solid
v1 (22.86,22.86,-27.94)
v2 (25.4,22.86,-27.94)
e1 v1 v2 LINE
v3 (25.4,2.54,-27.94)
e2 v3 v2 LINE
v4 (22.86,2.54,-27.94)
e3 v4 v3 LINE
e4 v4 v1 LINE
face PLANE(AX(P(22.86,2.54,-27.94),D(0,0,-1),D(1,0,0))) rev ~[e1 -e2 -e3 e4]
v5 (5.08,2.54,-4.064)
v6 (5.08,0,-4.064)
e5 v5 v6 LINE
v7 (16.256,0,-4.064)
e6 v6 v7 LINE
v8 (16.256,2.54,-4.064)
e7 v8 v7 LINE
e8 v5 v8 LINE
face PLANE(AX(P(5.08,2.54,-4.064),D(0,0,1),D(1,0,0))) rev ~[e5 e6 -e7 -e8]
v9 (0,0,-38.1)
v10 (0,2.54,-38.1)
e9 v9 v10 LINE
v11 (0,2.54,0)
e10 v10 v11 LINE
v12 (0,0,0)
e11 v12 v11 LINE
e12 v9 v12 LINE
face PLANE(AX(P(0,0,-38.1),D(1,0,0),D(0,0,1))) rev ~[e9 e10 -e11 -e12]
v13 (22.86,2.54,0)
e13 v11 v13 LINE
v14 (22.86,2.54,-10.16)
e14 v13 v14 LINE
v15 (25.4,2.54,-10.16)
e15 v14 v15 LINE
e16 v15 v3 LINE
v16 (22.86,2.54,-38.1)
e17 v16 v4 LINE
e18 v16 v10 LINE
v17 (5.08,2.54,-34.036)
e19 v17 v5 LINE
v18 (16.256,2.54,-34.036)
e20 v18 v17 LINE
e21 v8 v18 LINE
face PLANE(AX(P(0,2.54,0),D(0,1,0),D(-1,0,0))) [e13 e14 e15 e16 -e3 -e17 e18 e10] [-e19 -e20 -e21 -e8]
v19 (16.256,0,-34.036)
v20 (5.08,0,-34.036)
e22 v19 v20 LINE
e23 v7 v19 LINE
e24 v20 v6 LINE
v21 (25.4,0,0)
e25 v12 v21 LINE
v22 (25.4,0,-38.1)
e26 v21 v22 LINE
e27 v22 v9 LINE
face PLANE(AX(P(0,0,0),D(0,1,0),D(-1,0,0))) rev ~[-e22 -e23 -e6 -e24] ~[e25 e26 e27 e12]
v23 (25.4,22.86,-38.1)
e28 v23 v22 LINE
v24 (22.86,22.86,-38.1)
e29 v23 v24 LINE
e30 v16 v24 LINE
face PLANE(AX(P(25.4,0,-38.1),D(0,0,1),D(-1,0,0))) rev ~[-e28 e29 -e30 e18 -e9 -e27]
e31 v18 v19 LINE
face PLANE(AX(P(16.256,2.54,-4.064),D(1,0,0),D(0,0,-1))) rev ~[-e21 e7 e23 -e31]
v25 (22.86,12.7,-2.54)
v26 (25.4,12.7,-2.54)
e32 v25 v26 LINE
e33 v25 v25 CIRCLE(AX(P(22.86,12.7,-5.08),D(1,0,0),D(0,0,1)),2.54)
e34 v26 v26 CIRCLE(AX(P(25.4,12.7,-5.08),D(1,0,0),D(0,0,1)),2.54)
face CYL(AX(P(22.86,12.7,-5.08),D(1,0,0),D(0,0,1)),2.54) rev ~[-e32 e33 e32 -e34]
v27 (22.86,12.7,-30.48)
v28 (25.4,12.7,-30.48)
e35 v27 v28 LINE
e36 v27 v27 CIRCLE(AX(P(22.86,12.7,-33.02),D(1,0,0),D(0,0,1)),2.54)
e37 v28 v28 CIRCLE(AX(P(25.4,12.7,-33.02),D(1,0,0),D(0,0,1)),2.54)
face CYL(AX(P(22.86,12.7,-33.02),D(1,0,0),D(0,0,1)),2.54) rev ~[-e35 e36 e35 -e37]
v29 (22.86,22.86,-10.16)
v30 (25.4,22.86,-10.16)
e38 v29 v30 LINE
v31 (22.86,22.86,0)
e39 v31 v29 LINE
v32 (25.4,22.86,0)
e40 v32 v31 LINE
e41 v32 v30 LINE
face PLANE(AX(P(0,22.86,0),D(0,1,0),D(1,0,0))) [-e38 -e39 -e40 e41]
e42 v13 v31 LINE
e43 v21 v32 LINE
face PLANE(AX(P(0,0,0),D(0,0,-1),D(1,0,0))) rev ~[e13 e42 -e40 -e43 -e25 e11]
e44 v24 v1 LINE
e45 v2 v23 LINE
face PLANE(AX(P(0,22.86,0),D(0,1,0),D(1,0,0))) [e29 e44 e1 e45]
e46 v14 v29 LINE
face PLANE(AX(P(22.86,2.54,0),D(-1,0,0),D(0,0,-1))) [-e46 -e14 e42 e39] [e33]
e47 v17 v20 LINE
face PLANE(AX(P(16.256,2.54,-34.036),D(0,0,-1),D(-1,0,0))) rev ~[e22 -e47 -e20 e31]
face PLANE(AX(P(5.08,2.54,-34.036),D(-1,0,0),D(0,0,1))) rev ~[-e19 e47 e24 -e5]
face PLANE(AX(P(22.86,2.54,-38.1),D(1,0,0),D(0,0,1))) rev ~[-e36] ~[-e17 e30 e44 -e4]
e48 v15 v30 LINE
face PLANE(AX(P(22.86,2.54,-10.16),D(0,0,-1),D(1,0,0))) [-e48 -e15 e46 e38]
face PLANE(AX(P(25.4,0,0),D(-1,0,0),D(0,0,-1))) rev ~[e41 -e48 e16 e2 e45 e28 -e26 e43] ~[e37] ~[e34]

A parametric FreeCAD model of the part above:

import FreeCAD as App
import Part
import Sketcher
Q = App.Units.Quantity


def add_polygon(sketch, points):
    """Adds a closed chain of lines whose ends are joined by coincident constraints."""
    first, n = sketch.GeometryCount, len(points)
    for a, b in zip(points, points[1:] + points[:1]):
        sketch.addGeometry(Part.LineSegment(App.Vector(*a, 0), App.Vector(*b, 0)), False)
    for i in range(n):
        sketch.addConstraint(Sketcher.Constraint("Coincident", first + i, 2, first + (i + 1) % n, 1))

doc = App.newDocument("Part")
params = doc.addObject("Spreadsheet::Sheet", "Params")
for row, (alias, value) in enumerate([
    ("sketch1_width", "1 in"),
    ("sketch1_height", "1.5 in"),
    ("pad1_length", "0.1 in"),
    ("sketch2_width", "0.44 in"),
    ("sketch2_height", "1.18 in"),
    ("pocket1_length", "0.1 in"),
    ("sketch3_width", "0.1 in"),
    ("sketch3_height", "0.4 in"),
    ("pad2_length", "0.8 in"),
    ("sketch4_diameter", "0.2 in"),
    ("hole_diameter", "0.2 in"),
    ("sketch5_diameter", "0.2 in"),
    ("hole2_diameter", "0.2 in"),
], start=1):
    params.set(f"A{row}", alias)
    params.set(f"B{row}", "=" + value)
    params.setAlias(f"B{row}", alias)

body = doc.addObject("PartDesign::Body", "Body")

# Sketch on XZ plane
sketch1 = body.newObject("Sketcher::SketchObject", "Sketch")
sketch1.AttachmentSupport = (doc.getObject("XZ_Plane"), [""])
sketch1.MapMode = "FlatFace"
add_polygon(sketch1, [(0, -38), (0, 0), (25, 0), (25, -38)])  # lines 0-3
sketch1.addConstraint([
    Sketcher.Constraint("Vertical", 0),
    Sketcher.Constraint("Horizontal", 1),
    Sketcher.Constraint("Vertical", 2),
    Sketcher.Constraint("Horizontal", 3),
    Sketcher.Constraint("Coincident", 0, 2, -1, 1),
    Sketcher.Constraint("DistanceX", 1, 1, 1, 2, Q("1 in")),
    Sketcher.Constraint("DistanceY", 0, 1, 0, 2, Q("1.5 in")),
])
sketch1.setExpression("Constraints[9]", "Params.sketch1_width")
sketch1.setExpression("Constraints[10]", "Params.sketch1_height")
pad1 = body.newObject("PartDesign::Pad", "Pad")
pad1.Profile = sketch1
pad1.setExpression("Length", "Params.pad1_length")
pad1.Reversed = True

# Sketch on XZ plane
sketch2 = body.newObject("Sketcher::SketchObject", "Sketch001")
sketch2.AttachmentSupport = (doc.getObject("XZ_Plane"), [""])
sketch2.MapMode = "FlatFace"
sketch2.AttachmentOffset = App.Placement(App.Vector(0, 0, -0.1 * 25.4), App.Rotation())
add_polygon(sketch2, [(5, -34), (5, -4), (16, -4), (16, -34)])  # lines 0-3
sketch2.addConstraint([
    Sketcher.Constraint("Vertical", 0),
    Sketcher.Constraint("Horizontal", 1),
    Sketcher.Constraint("Vertical", 2),
    Sketcher.Constraint("Horizontal", 3),
    Sketcher.Constraint("DistanceX", 1, 1, 1, 2, Q("0.44 in")),
    Sketcher.Constraint("DistanceX", -1, 1, 0, 2, Q("0.2 in")),
    Sketcher.Constraint("DistanceY", 0, 2, -1, 1, Q("0.16 in")),
    Sketcher.Constraint("DistanceY", 0, 1, 0, 2, Q("1.18 in")),
])
sketch2.setExpression("Constraints[8]", "Params.sketch2_width")
sketch2.setExpression("Constraints[11]", "Params.sketch2_height")
pocket1 = body.newObject("PartDesign::Pocket", "Pocket")
pocket1.Profile = sketch2
pocket1.setExpression("Length", "Params.pocket1_length")
pocket1.Reversed = True

# Sketch on XZ plane
sketch3 = body.newObject("Sketcher::SketchObject", "Sketch002")
sketch3.AttachmentSupport = (doc.getObject("XZ_Plane"), [""])
sketch3.MapMode = "FlatFace"
sketch3.AttachmentOffset = App.Placement(App.Vector(0, 0, -0.1 * 25.4), App.Rotation())
add_polygon(sketch3, [(22.9, 0), (25.4, 0), (25.4, -10.2), (22.9, -10.2)])  # lines 0-3
add_polygon(sketch3, [(22.9, -27.9), (25.4, -27.9), (25.4, -38.1), (22.9, -38.1)])  # lines 4-7
sketch3.addConstraint([
    Sketcher.Constraint("Horizontal", 0),
    Sketcher.Constraint("Vertical", 1),
    Sketcher.Constraint("Horizontal", 2),
    Sketcher.Constraint("Vertical", 3),
    Sketcher.Constraint("Horizontal", 4),
    Sketcher.Constraint("Vertical", 5),
    Sketcher.Constraint("Horizontal", 6),
    Sketcher.Constraint("Vertical", 7),
    Sketcher.Constraint("PointOnObject", 0, 2, -1),
    Sketcher.Constraint("Vertical", 1, 2, 4, 2),
    Sketcher.Constraint("Vertical", 3, 2, 6, 2),
    Sketcher.Constraint("Equal", 3, 5),
    Sketcher.Constraint("DistanceX", 0, 1, 0, 2, Q("0.1 in")),
    Sketcher.Constraint("DistanceY", 1, 2, 1, 1, Q("0.4 in")),
    Sketcher.Constraint("DistanceX", -1, 1, 0, 2, Q("1 in")),
    Sketcher.Constraint("DistanceY", 4, 2, -1, 1, Q("1.1 in")),
])
sketch3.setExpression("Constraints[20]", "Params.sketch3_width")
sketch3.setExpression("Constraints[21]", "Params.sketch3_height")
pad2 = body.newObject("PartDesign::Pad", "Pad001")
pad2.Profile = sketch3
pad2.setExpression("Length", "Params.pad2_length")
pad2.Reversed = True

# Sketch on YZ plane
sketch4 = body.newObject("Sketcher::SketchObject", "Sketch003")
sketch4.AttachmentSupport = (doc.getObject("YZ_Plane"), [""])
sketch4.MapMode = "FlatFace"
sketch4.AttachmentOffset = App.Placement(App.Vector(0, 0, 0.9 * 25.4), App.Rotation())
sketch4.addGeometry(Part.Circle(App.Vector(12.7, -5.1, 0), App.Vector(0, 0, 1), 2.5), False)
sketch4.addConstraint([
    Sketcher.Constraint("Diameter", 0, Q("0.2 in")),
    Sketcher.Constraint("DistanceX", -1, 1, 0, 3, Q("0.5 in")),
    Sketcher.Constraint("DistanceY", 0, 3, -1, 1, Q("0.2 in")),
])
sketch4.setExpression("Constraints[0]", "Params.sketch4_diameter")
doc.recompute()
hole = body.newObject("PartDesign::Hole", "Hole")
hole.Profile = sketch4
hole.ThreadType = "None"
hole.setExpression("Diameter", "Params.hole_diameter")
hole.DepthType = "ThroughAll"
hole.Reversed = True

# Sketch on YZ plane
sketch5 = body.newObject("Sketcher::SketchObject", "Sketch004")
sketch5.AttachmentSupport = (doc.getObject("YZ_Plane"), [""])
sketch5.MapMode = "FlatFace"
sketch5.AttachmentOffset = App.Placement(App.Vector(0, 0, 0.9 * 25.4), App.Rotation())
sketch5.addGeometry(Part.Circle(App.Vector(12.7, -33, 0), App.Vector(0, 0, 1), 2.5), False)
sketch5.addConstraint([
    Sketcher.Constraint("Diameter", 0, Q("0.2 in")),
    Sketcher.Constraint("DistanceX", -1, 1, 0, 3, Q("0.5 in")),
    Sketcher.Constraint("DistanceY", 0, 3, -1, 1, Q("1.3 in")),
])
sketch5.setExpression("Constraints[0]", "Params.sketch5_diameter")
doc.recompute()
hole2 = body.newObject("PartDesign::Hole", "Hole001")
hole2.Profile = sketch5
hole2.ThreadType = "None"
hole2.setExpression("Diameter", "Params.hole2_diameter")
hole2.DepthType = "ThroughAll"
hole2.Reversed = True

doc.recompute()
